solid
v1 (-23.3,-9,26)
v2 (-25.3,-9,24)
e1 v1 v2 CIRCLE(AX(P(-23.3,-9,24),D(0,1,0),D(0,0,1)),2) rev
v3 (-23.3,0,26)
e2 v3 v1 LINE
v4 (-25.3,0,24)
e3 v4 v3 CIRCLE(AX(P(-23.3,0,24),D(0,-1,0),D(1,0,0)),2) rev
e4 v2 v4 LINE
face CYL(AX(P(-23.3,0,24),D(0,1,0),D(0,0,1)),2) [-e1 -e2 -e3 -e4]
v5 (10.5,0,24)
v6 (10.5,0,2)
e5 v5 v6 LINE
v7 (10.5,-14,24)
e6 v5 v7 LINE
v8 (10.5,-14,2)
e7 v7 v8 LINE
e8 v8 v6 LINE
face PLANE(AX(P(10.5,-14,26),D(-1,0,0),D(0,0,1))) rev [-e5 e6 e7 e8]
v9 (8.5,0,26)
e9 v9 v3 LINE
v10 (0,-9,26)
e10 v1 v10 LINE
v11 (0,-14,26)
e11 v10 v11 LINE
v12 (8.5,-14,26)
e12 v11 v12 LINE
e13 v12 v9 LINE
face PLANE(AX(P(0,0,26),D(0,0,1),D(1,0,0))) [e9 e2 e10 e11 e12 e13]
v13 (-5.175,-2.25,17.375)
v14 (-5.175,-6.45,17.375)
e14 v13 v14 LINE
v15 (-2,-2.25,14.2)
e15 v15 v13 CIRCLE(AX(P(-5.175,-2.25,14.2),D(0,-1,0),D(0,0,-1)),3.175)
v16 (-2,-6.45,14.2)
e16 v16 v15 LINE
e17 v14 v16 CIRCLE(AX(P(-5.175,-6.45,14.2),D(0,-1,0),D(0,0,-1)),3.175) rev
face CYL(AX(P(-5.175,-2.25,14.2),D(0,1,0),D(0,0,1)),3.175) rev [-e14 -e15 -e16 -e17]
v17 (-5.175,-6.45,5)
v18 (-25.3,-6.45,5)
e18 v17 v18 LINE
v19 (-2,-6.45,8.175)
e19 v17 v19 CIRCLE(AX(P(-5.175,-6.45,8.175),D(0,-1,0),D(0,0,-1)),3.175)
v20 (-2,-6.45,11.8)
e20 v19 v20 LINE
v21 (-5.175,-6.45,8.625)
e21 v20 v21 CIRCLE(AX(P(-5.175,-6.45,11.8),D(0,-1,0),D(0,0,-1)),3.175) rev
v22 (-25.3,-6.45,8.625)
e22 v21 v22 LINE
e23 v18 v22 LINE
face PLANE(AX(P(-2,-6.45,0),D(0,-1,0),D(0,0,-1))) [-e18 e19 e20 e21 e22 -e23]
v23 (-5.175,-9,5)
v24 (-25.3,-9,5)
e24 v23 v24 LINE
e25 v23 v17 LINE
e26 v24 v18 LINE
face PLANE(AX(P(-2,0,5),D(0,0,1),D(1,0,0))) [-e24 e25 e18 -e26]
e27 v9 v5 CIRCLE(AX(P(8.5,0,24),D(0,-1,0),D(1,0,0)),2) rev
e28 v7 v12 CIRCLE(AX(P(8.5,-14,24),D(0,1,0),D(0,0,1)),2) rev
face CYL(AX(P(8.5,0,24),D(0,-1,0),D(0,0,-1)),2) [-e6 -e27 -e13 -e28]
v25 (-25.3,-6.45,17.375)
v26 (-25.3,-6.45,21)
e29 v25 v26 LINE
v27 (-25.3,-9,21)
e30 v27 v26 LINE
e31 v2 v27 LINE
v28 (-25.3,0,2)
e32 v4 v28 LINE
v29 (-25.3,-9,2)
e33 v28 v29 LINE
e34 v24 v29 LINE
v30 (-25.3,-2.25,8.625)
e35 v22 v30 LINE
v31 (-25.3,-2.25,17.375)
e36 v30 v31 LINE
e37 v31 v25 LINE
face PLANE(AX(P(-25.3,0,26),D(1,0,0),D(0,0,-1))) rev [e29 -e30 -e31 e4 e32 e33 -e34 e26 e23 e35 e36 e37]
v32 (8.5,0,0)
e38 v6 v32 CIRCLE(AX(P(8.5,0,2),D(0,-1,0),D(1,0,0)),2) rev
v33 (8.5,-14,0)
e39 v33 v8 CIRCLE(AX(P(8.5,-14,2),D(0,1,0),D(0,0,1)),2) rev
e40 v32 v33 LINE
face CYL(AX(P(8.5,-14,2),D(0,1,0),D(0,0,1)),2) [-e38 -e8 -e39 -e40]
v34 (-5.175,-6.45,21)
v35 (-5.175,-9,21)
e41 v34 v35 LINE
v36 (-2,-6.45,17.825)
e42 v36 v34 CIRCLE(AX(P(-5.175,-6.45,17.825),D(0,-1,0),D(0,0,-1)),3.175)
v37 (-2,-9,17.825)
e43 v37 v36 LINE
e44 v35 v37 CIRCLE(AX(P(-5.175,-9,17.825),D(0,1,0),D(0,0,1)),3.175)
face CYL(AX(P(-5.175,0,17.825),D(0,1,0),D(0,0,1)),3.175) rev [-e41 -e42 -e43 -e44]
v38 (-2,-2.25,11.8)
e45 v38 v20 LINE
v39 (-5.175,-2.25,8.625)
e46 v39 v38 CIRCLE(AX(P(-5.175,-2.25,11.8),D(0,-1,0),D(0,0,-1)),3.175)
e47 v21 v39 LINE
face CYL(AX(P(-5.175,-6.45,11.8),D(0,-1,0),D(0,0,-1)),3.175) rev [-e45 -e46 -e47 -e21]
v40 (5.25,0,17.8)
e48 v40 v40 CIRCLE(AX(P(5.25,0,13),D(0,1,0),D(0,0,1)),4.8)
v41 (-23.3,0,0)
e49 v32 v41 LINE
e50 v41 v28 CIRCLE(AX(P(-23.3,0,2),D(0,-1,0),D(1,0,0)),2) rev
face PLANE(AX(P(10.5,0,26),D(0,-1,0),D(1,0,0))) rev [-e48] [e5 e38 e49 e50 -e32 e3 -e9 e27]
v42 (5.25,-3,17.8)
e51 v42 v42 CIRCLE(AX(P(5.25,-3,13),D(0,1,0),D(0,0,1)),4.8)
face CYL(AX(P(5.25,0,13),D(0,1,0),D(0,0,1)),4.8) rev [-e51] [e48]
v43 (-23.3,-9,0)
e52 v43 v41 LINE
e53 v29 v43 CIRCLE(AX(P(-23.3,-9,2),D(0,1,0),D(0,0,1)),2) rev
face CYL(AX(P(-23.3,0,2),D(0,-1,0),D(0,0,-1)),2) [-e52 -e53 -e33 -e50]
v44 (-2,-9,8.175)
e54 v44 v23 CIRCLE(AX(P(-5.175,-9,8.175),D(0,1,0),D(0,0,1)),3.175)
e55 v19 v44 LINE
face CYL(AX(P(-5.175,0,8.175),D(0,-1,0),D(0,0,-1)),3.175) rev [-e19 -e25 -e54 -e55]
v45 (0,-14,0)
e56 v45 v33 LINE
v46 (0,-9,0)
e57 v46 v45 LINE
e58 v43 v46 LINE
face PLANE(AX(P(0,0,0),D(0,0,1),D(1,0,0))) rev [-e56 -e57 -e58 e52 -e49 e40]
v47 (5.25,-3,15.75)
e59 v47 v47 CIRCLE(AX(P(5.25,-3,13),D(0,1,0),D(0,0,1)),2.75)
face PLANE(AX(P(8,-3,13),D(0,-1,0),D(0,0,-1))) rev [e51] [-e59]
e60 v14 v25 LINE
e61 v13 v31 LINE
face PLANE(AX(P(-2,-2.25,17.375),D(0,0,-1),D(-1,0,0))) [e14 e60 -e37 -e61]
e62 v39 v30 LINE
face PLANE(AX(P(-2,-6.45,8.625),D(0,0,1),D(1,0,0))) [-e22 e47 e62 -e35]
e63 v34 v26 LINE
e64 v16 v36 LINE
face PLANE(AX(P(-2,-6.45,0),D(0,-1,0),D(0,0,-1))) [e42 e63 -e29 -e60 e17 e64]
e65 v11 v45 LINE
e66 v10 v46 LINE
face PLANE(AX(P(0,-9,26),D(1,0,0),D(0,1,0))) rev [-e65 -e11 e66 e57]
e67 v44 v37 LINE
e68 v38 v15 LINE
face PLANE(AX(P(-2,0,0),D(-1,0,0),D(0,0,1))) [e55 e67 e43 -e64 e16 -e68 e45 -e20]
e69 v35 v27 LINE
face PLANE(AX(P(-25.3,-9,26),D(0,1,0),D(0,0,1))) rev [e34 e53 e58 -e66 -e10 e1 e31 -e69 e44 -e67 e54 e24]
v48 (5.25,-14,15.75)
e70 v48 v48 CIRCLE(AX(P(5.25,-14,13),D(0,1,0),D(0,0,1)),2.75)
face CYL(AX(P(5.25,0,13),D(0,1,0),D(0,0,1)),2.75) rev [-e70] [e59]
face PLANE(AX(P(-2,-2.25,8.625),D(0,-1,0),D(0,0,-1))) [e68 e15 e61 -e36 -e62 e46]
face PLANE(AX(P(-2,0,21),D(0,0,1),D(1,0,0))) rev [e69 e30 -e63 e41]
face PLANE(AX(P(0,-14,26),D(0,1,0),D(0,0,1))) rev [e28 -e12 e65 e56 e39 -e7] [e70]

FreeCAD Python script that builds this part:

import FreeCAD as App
import Part
import Sketcher
Q = App.Units.Quantity


def edges_at(feature, points):
    """Names of the edges that pass closest to the given points."""
    edges = feature.Shape.Edges
    near = lambda p: min(range(len(edges)), key=lambda i: edges[i].distToShape(Part.Vertex(*p))[0])
    return sorted({f"Edge{near(p) + 1}" for p in points})

doc = App.newDocument("Part")
body = doc.addObject("PartDesign::Body", "Body")

sketch1 = doc.addObject("Sketcher::SketchObject", "Sketch")
body.addObject(sketch1)
sketch1.AttachmentSupport = (doc.XY_Plane, [""])
sketch1.MapMode = "FlatFace"
sketch1.addGeometry(Part.LineSegment(App.Vector(-25, 0, 0), App.Vector(-25, -9, 0)), False)
sketch1.addGeometry(Part.LineSegment(App.Vector(-25, -9, 0), App.Vector(0, -9, 0)), False)
sketch1.addGeometry(Part.LineSegment(App.Vector(0, -9, 0), App.Vector(0, -14, 0)), False)
sketch1.addGeometry(Part.LineSegment(App.Vector(0, -14, 0), App.Vector(10, -14, 0)), False)
sketch1.addGeometry(Part.LineSegment(App.Vector(10, -14, 0), App.Vector(10, 0, 0)), False)
sketch1.addGeometry(Part.LineSegment(App.Vector(10, 0, 0), App.Vector(-25, 0, 0)), False)
sketch1.addConstraint(Sketcher.Constraint("Coincident", 0, 2, 1, 1))
sketch1.addConstraint(Sketcher.Constraint("Coincident", 1, 2, 2, 1))
sketch1.addConstraint(Sketcher.Constraint("Coincident", 2, 2, 3, 1))
sketch1.addConstraint(Sketcher.Constraint("Coincident", 3, 2, 4, 1))
sketch1.addConstraint(Sketcher.Constraint("Coincident", 4, 2, 5, 1))
sketch1.addConstraint(Sketcher.Constraint("Coincident", 5, 2, 0, 1))
sketch1.addConstraint(Sketcher.Constraint("Vertical", 0))
sketch1.addConstraint(Sketcher.Constraint("Horizontal", 1))
sketch1.addConstraint(Sketcher.Constraint("Vertical", 2))
sketch1.addConstraint(Sketcher.Constraint("Horizontal", 3))
sketch1.addConstraint(Sketcher.Constraint("Vertical", 4))
sketch1.addConstraint(Sketcher.Constraint("Horizontal", 5))
sketch1.addConstraint(Sketcher.Constraint("PointOnObject", 1, 2, -2))
sketch1.addConstraint(Sketcher.Constraint("PointOnObject", 4, 2, -1))
sketch1.addConstraint(Sketcher.Constraint("DistanceY", 0, 2, 0, 1, Q("9 mm")))
sketch1.addConstraint(Sketcher.Constraint("DistanceY", 2, 2, 2, 1, Q("5 mm")))
sketch1.addConstraint(Sketcher.Constraint("DistanceX", 1, 1, 1, 2, Q("25.3 mm")))
sketch1.addConstraint(Sketcher.Constraint("DistanceX", 3, 1, 3, 2, Q("10.5 mm")))
pad1 = doc.addObject("PartDesign::Pad", "Pad")
body.addObject(pad1)
pad1.Profile = sketch1
pad1.Length = 26
doc.recompute()

fillet = doc.addObject("PartDesign::Fillet", "Fillet")
body.addObject(fillet)
fillet.Base = (pad1, edges_at(pad1, [
    (10.5, -7, 26),
    (10.5, -7, 0),
    (-25.3, -4.5, 26),
    (-25.3, -4.5, 0),
]))
fillet.Radius = 2

sketch2 = doc.addObject("Sketcher::SketchObject", "Sketch001")
body.addObject(sketch2)
sketch2.AttachmentSupport = (doc.XZ_Plane, [""])
sketch2.MapMode = "FlatFace"
sketch2.addGeometry(Part.Circle(App.Vector(5.2, 13, 0), App.Vector(0, 0, 1), 2.8), False)
sketch2.addConstraint(Sketcher.Constraint("Diameter", 0, Q("5.5 mm")))
sketch2.addConstraint(Sketcher.Constraint("DistanceY", -1, 1, 0, 3, Q("13 mm")))
sketch2.addConstraint(Sketcher.Constraint("DistanceX", -1, 1, 0, 3, Q("5.25 mm")))
doc.recompute()
hole = doc.addObject("PartDesign::Hole", "Hole")
body.addObject(hole)
hole.Profile = sketch2
hole.ThreadType = "None"
hole.Diameter = 5.5
hole.DepthType = "ThroughAll"
hole.HoleCutType = "Counterbore"
hole.HoleCutDiameter = 9.6
hole.HoleCutDepth = 3
hole.Reversed = True

sketch3 = doc.addObject("Sketcher::SketchObject", "Sketch002")
body.addObject(sketch3)
sketch3.AttachmentSupport = (doc.YZ_Plane, [""])
sketch3.MapMode = "FlatFace"
sketch3.AttachmentOffset = App.Placement(App.Vector(0, 0, -25.3), App.Rotation())
sketch3.addGeometry(Part.LineSegment(App.Vector(-2.2, 8.6, 0), App.Vector(-6.5, 8.6, 0)), False)
sketch3.addGeometry(Part.LineSegment(App.Vector(-6.5, 8.6, 0), App.Vector(-6.5, 5, 0)), False)
sketch3.addGeometry(Part.LineSegment(App.Vector(-6.5, 5, 0), App.Vector(-9, 5, 0)), False)
sketch3.addGeometry(Part.LineSegment(App.Vector(-9, 5, 0), App.Vector(-9, 21, 0)), False)
sketch3.addGeometry(Part.LineSegment(App.Vector(-9, 21, 0), App.Vector(-6.5, 21, 0)), False)
sketch3.addGeometry(Part.LineSegment(App.Vector(-6.5, 21, 0), App.Vector(-6.5, 17.4, 0)), False)
sketch3.addGeometry(Part.LineSegment(App.Vector(-6.5, 17.4, 0), App.Vector(-2.2, 17.4, 0)), False)
sketch3.addGeometry(Part.LineSegment(App.Vector(-2.2, 17.4, 0), App.Vector(-2.2, 8.6, 0)), False)
sketch3.addConstraint(Sketcher.Constraint("Coincident", 0, 2, 1, 1))
sketch3.addConstraint(Sketcher.Constraint("Coincident", 1, 2, 2, 1))
sketch3.addConstraint(Sketcher.Constraint("Coincident", 2, 2, 3, 1))
sketch3.addConstraint(Sketcher.Constraint("Coincident", 3, 2, 4, 1))
sketch3.addConstraint(Sketcher.Constraint("Coincident", 4, 2, 5, 1))
sketch3.addConstraint(Sketcher.Constraint("Coincident", 5, 2, 6, 1))
sketch3.addConstraint(Sketcher.Constraint("Coincident", 6, 2, 7, 1))
sketch3.addConstraint(Sketcher.Constraint("Coincident", 7, 2, 0, 1))
sketch3.addConstraint(Sketcher.Constraint("Horizontal", 0))
sketch3.addConstraint(Sketcher.Constraint("Vertical", 1))
sketch3.addConstraint(Sketcher.Constraint("Horizontal", 2))
sketch3.addConstraint(Sketcher.Constraint("Vertical", 3))
sketch3.addConstraint(Sketcher.Constraint("Horizontal", 4))
sketch3.addConstraint(Sketcher.Constraint("Vertical", 5))
sketch3.addConstraint(Sketcher.Constraint("Horizontal", 6))
sketch3.addConstraint(Sketcher.Constraint("Vertical", 7))
sketch3.addConstraint(Sketcher.Constraint("Vertical", 1, 2, 4, 2))
sketch3.addConstraint(Sketcher.Constraint("Equal", 1, 5))
sketch3.addConstraint(Sketcher.Constraint("DistanceY", 3, 1, 3, 2, Q("16 mm")))
sketch3.addConstraint(Sketcher.Constraint("DistanceX", 0, 2, 0, 1, Q("4.2 mm")))
sketch3.addConstraint(Sketcher.Constraint("DistanceY", -1, 1, 1, 2, Q("5 mm")))
sketch3.addConstraint(Sketcher.Constraint("DistanceX", 2, 2, -1, 1, Q("9 mm")))
sketch3.addConstraint(Sketcher.Constraint("DistanceX", 2, 2, 2, 1, Q("2.55 mm")))
sketch3.addConstraint(Sketcher.Constraint("DistanceY", 7, 2, 7, 1, Q("8.75 mm")))
pocket1 = doc.addObject("PartDesign::Pocket", "Pocket")
body.addObject(pocket1)
pocket1.Profile = sketch3
pocket1.Length = 23.3
pocket1.Reversed = True
doc.recompute()

fillet2 = doc.addObject("PartDesign::Fillet", "Fillet001")
body.addObject(fillet2)
fillet2.Base = (pocket1, edges_at(pocket1, [
    (-2, -7.725, 21),
    (-2, -7.725, 5),
    (-2, -4.35, 8.625),
    (-2, -4.35, 17.375),
]))
fillet2.Radius = 3.175

doc.recompute()
